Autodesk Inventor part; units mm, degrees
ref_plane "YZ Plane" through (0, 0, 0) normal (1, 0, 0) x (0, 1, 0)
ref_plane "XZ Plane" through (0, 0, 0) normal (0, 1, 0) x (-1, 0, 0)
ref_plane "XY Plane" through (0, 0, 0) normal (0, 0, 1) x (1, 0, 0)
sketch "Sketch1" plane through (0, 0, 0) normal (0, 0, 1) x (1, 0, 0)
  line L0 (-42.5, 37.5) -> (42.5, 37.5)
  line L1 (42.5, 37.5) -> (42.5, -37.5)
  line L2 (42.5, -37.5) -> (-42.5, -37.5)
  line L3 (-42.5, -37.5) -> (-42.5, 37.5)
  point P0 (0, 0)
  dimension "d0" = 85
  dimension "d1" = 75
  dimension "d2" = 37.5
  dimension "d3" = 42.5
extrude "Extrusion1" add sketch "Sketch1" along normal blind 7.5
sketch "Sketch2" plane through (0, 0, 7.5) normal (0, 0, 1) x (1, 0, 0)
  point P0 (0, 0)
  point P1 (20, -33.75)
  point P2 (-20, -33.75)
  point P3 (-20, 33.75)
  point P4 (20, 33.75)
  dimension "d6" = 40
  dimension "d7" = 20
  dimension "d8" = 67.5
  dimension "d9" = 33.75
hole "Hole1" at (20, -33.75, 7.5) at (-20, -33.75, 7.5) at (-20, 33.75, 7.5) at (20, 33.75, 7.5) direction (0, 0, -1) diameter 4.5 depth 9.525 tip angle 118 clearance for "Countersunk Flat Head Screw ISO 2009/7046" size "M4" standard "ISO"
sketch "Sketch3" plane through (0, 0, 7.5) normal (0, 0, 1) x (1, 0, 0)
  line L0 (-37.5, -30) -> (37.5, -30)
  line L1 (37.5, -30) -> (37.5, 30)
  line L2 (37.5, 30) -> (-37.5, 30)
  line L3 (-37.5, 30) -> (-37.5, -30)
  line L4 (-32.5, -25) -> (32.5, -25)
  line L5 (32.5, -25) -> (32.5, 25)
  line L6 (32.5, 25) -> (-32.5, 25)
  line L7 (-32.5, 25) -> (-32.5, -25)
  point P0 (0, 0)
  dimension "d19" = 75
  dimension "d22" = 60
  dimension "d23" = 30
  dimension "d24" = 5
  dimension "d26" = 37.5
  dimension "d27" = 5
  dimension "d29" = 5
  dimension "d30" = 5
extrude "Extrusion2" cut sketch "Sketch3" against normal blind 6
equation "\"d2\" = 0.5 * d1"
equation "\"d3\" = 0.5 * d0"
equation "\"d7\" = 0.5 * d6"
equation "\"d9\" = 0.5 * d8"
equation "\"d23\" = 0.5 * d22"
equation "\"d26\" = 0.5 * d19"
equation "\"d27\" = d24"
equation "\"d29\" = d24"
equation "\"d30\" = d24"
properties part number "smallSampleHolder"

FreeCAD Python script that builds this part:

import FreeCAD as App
import Part
import Sketcher
Q = App.Units.Quantity


def add_polygon(sketch, points):
    """Adds a closed chain of lines whose ends are joined by coincident constraints."""
    first, n = sketch.GeometryCount, len(points)
    for a, b in zip(points, points[1:] + points[:1]):
        sketch.addGeometry(Part.LineSegment(App.Vector(*a, 0), App.Vector(*b, 0)), False)
    for i in range(n):
        sketch.addConstraint(Sketcher.Constraint("Coincident", first + i, 2, first + (i + 1) % n, 1))

doc = App.newDocument("Part")
params = doc.addObject("Spreadsheet::Sheet", "Params")
for row, (alias, value) in enumerate([
    ("sketch1_width", "85 mm"),
    ("sketch1_height", "75 mm"),
    ("pad1_length", "7.5 mm"),
    ("sketch2_diameter", "4.5 mm"),
    ("hole_diameter", "4.5 mm"),
    ("hole_depth", "9.525 mm"),
    ("sketch3_width", "75 mm"),
    ("sketch3_height", "60 mm"),
    ("pocket1_length", "6 mm"),
], start=1):
    params.set(f"A{row}", alias)
    params.set(f"B{row}", "=" + value)
    params.setAlias(f"B{row}", alias)

body = doc.addObject("PartDesign::Body", "Body")

sketch1 = body.newObject("Sketcher::SketchObject", "Sketch")
sketch1.AttachmentSupport = (doc.getObject("XY_Plane"), [""])
sketch1.MapMode = "FlatFace"
add_polygon(sketch1, [(42, 38), (-42, 38), (-42, -38), (42, -38)])
sketch1.addConstraint(Sketcher.Constraint("Horizontal", 0))
sketch1.addConstraint(Sketcher.Constraint("Vertical", 1))
sketch1.addConstraint(Sketcher.Constraint("Horizontal", 2))
sketch1.addConstraint(Sketcher.Constraint("Vertical", 3))
sketch1.addConstraint(Sketcher.Constraint("Symmetric", 0, 2, 2, 2, -1, 1))
sketch1.addConstraint(Sketcher.Constraint("DistanceX", 0, 2, 0, 1, Q("85 mm")))
sketch1.addConstraint(Sketcher.Constraint("DistanceY", 1, 2, 1, 1, Q("75 mm")))
sketch1.setExpression("Constraints[9]", "Params.sketch1_width")
sketch1.setExpression("Constraints[10]", "Params.sketch1_height")
pad1 = body.newObject("PartDesign::Pad", "Pad")
pad1.Profile = sketch1
pad1.setExpression("Length", "Params.pad1_length")

sketch2 = body.newObject("Sketcher::SketchObject", "Sketch001")
sketch2.AttachmentSupport = (doc.getObject("XY_Plane"), [""])
sketch2.MapMode = "FlatFace"
sketch2.AttachmentOffset = App.Placement(App.Vector(0, 0, 7.5), App.Rotation())
sketch2.addGeometry(Part.Circle(App.Vector(20, -33.8, 0), App.Vector(0, 0, 1), 2.2), False)
sketch2.addGeometry(Part.Circle(App.Vector(-20, -33.8, 0), App.Vector(0, 0, 1), 2.2), False)
sketch2.addGeometry(Part.Circle(App.Vector(-20, 33.8, 0), App.Vector(0, 0, 1), 2.2), False)
sketch2.addGeometry(Part.Circle(App.Vector(20, 33.8, 0), App.Vector(0, 0, 1), 2.2), False)
sketch2.addConstraint(Sketcher.Constraint("Equal", 0, 1))
sketch2.addConstraint(Sketcher.Constraint("Equal", 1, 2))
sketch2.addConstraint(Sketcher.Constraint("Equal", 2, 3))
sketch2.addConstraint(Sketcher.Constraint("Symmetric", 0, 3, 2, 3, -1, 1))
sketch2.addConstraint(Sketcher.Constraint("Symmetric", 1, 3, 3, 3, -1, 1))
sketch2.addConstraint(Sketcher.Constraint("Symmetric", 0, 3, 1, 3, -2))
sketch2.addConstraint(Sketcher.Constraint("Diameter", 0, Q("4.5 mm")))
sketch2.addConstraint(Sketcher.Constraint("DistanceX", -1, 1, 0, 3, Q("20 mm")))
sketch2.addConstraint(Sketcher.Constraint("DistanceY", 1, 3, 2, 3, Q("67.5 mm")))
sketch2.setExpression("Constraints[6]", "Params.sketch2_diameter")
doc.recompute()
hole = body.newObject("PartDesign::Hole", "Hole")
hole.Profile = sketch2
hole.ThreadType = "None"
hole.setExpression("Diameter", "Params.hole_diameter")
hole.DepthType = "Dimension"
hole.setExpression("Depth", "Params.hole_depth")
hole.DrillPoint = "Angled"
hole.DrillPointAngle = 118

sketch3 = body.newObject("Sketcher::SketchObject", "Sketch002")
sketch3.AttachmentSupport = (doc.getObject("XY_Plane"), [""])
sketch3.MapMode = "FlatFace"
sketch3.AttachmentOffset = App.Placement(App.Vector(0, 0, 7.5), App.Rotation())
add_polygon(sketch3, [(-38, 30), (-38, -30), (38, -30), (38, 30)])
add_polygon(sketch3, [(32, -25), (-32, -25), (-32, 25), (32, 25)])
sketch3.addConstraint(Sketcher.Constraint("Vertical", 0))
sketch3.addConstraint(Sketcher.Constraint("Horizontal", 1))
sketch3.addConstraint(Sketcher.Constraint("Vertical", 2))
sketch3.addConstraint(Sketcher.Constraint("Horizontal", 3))
sketch3.addConstraint(Sketcher.Constraint("Horizontal", 4))
sketch3.addConstraint(Sketcher.Constraint("Vertical", 5))
sketch3.addConstraint(Sketcher.Constraint("Horizontal", 6))
sketch3.addConstraint(Sketcher.Constraint("Vertical", 7))
sketch3.addConstraint(Sketcher.Constraint("Symmetric", 0, 2, 2, 2, -1, 1))
sketch3.addConstraint(Sketcher.Constraint("Symmetric", 4, 2, 6, 2, -1, 1))
sketch3.addConstraint(Sketcher.Constraint("DistanceX", 1, 1, 1, 2, Q("75 mm")))
sketch3.addConstraint(Sketcher.Constraint("DistanceY", 0, 2, 0, 1, Q("60 mm")))
sketch3.addConstraint(Sketcher.Constraint("DistanceX", 0, 2, 4, 2, Q("5 mm")))
sketch3.addConstraint(Sketcher.Constraint("DistanceY", 0, 2, 4, 2, Q("5 mm")))
sketch3.setExpression("Constraints[18]", "Params.sketch3_width")
sketch3.setExpression("Constraints[19]", "Params.sketch3_height")
pocket1 = body.newObject("PartDesign::Pocket", "Pocket")
pocket1.Profile = sketch3
pocket1.setExpression("Length", "Params.pocket1_length")

doc.recompute()
